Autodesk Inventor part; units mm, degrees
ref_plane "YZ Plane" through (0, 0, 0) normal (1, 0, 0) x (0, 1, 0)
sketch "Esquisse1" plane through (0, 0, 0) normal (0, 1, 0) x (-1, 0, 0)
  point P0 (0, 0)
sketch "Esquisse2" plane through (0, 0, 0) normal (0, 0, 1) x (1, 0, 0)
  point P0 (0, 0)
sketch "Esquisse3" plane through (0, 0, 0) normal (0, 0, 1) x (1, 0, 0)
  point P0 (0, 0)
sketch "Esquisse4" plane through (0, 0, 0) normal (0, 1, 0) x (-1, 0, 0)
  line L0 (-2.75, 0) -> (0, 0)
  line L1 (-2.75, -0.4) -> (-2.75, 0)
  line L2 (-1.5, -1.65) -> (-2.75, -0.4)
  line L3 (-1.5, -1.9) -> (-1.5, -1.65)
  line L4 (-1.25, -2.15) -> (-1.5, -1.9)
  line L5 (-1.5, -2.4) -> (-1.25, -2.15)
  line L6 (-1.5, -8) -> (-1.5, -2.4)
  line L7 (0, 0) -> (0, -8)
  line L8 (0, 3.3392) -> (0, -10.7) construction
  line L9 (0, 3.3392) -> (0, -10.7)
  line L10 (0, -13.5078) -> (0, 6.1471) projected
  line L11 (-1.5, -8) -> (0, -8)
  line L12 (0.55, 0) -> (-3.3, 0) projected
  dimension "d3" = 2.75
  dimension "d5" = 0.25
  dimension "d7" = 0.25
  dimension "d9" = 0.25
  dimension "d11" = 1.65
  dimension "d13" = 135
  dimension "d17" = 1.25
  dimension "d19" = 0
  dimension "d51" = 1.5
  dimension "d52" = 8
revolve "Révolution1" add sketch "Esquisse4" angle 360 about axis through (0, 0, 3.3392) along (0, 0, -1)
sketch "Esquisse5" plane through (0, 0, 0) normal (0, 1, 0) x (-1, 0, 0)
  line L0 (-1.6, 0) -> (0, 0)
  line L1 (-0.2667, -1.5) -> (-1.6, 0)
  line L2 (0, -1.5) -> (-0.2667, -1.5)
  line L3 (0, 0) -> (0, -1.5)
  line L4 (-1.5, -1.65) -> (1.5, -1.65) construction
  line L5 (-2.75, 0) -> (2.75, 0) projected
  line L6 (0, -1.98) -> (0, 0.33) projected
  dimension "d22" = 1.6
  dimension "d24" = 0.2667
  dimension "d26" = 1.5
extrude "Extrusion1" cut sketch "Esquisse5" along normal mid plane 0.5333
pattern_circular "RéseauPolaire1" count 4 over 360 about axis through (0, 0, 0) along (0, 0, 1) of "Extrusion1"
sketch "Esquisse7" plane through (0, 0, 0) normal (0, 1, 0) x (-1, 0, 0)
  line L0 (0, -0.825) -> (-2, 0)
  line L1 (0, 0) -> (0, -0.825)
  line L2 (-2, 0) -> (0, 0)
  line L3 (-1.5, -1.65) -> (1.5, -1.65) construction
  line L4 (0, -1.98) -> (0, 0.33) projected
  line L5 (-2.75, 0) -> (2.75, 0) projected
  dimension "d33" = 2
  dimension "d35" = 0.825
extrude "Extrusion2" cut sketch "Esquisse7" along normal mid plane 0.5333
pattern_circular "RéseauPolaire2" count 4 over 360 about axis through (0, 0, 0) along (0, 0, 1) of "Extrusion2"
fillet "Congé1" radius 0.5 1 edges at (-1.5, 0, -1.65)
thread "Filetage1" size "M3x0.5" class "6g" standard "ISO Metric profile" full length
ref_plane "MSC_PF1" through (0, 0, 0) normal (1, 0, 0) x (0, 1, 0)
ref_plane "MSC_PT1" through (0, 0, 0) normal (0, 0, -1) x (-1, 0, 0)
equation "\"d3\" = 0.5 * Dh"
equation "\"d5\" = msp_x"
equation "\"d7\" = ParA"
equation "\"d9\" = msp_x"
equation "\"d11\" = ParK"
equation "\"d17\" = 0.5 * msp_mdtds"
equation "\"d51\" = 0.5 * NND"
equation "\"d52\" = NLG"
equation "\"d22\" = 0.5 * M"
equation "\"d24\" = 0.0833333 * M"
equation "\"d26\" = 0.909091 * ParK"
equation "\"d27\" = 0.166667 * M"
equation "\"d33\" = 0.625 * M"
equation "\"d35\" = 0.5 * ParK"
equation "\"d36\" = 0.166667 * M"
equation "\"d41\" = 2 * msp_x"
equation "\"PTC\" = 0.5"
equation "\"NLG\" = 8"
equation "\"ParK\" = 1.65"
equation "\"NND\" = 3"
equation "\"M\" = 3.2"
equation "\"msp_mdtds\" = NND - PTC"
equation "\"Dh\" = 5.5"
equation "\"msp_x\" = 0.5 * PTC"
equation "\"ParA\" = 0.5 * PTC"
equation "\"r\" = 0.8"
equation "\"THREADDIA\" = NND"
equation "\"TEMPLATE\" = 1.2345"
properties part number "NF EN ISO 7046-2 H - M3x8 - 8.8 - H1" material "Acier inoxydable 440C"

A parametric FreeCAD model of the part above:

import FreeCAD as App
import Part
import Sketcher
Q = App.Units.Quantity


def edges_at(feature, points):
    """Names of the edges that pass closest to the given points."""
    edges = feature.Shape.Edges
    near = lambda p: min(range(len(edges)), key=lambda i: edges[i].distToShape(Part.Vertex(*p))[0])
    return sorted({f"Edge{near(p) + 1}" for p in points})

doc = App.newDocument("Part")
params = doc.addObject("Spreadsheet::Sheet", "Params")
for row, (alias, value) in enumerate([
    ("sketch1_height", "8 mm"),
    ("sketch1_width", "1.5 mm"),
    ("sketch1_width2", "2.75 mm"),
    ("sketch1_height2", "0.25 mm"),
    ("revolution_angle", "360 deg"),
    ("sketch2_width", "1.6 mm"),
    ("sketch2_height", "1.5 mm"),
    ("pocket1_length", "0.5333 mm"),
    ("sketch3_width", "2 mm"),
    ("pocket2_length", "0.5333 mm"),
    ("fillet_radius", "0.5 mm"),
], start=1):
    params.set(f"A{row}", alias)
    params.set(f"B{row}", "=" + value)
    params.setAlias(f"B{row}", alias)

body = doc.addObject("PartDesign::Body", "Body")

# Sketch on XZ plane
sketch1 = doc.addObject("Sketcher::SketchObject", "Sketch")
body.addObject(sketch1)
sketch1.AttachmentSupport = (doc.XZ_Plane, [""])
sketch1.MapMode = "FlatFace"
sketch1.addGeometry([
    Part.LineSegment(App.Vector(0, 0, 0), App.Vector(2.75, 0, 0)),  # 0
    Part.LineSegment(App.Vector(2.75, 0, 0), App.Vector(2.75, -0.4, 0)),  # 1
    Part.LineSegment(App.Vector(2.75, -0.4, 0), App.Vector(1.5, -1.65, 0)),  # 2
    Part.LineSegment(App.Vector(1.5, -1.65, 0), App.Vector(1.5, -1.9, 0)),  # 3
    Part.LineSegment(App.Vector(1.5, -1.9, 0), App.Vector(1.25, -2.15, 0)),  # 4
    Part.LineSegment(App.Vector(1.25, -2.15, 0), App.Vector(1.5, -2.4, 0)),  # 5
    Part.LineSegment(App.Vector(1.5, -2.4, 0), App.Vector(1.5, -8, 0)),  # 6
    Part.LineSegment(App.Vector(1.5, -8, 0), App.Vector(0, -8, 0)),  # 7
    Part.LineSegment(App.Vector(0, -8, 0), App.Vector(0, 0, 0)),  # 8
], False)
sketch1.addConstraint([
    Sketcher.Constraint("Coincident", 0, 2, 1, 1),
    Sketcher.Constraint("Coincident", 1, 2, 2, 1),
    Sketcher.Constraint("Coincident", 2, 2, 3, 1),
    Sketcher.Constraint("Coincident", 3, 2, 4, 1),
    Sketcher.Constraint("Coincident", 4, 2, 5, 1),
    Sketcher.Constraint("Coincident", 5, 2, 6, 1),
    Sketcher.Constraint("Coincident", 6, 2, 7, 1),
    Sketcher.Constraint("Coincident", 7, 2, 8, 1),
    Sketcher.Constraint("Coincident", 8, 2, 0, 1),
    Sketcher.Constraint("Horizontal", 0),
    Sketcher.Constraint("Vertical", 1),
    Sketcher.Constraint("Vertical", 3),
    Sketcher.Constraint("Vertical", 6),
    Sketcher.Constraint("Horizontal", 7),
    Sketcher.Constraint("Vertical", 8),
    Sketcher.Constraint("Coincident", 8, 2, -1, 1),
    Sketcher.Constraint("Parallel", 2, 4),
    Sketcher.Constraint("Perpendicular", 4, 5),
    Sketcher.Constraint("Vertical", 3, 2, 5, 2),
    Sketcher.Constraint("Equal", 4, 5),
    Sketcher.Constraint("DistanceY", 8, 1, 8, 2, Q("8 mm")),
    Sketcher.Constraint("DistanceX", 7, 2, 7, 1, Q("1.5 mm")),
    Sketcher.Constraint("DistanceX", 0, 1, 0, 2, Q("2.75 mm")),
    Sketcher.Constraint("DistanceY", 3, 2, 3, 1, Q("0.25 mm")),
    Sketcher.Constraint("DistanceX", 4, 2, 1, 2, Q("1.5 mm")),
    Sketcher.Constraint("DistanceY", 2, 2, -1, 1, Q("1.65 mm")),
])
sketch1.setExpression("Constraints[20]", "Params.sketch1_height")
sketch1.setExpression("Constraints[21]", "Params.sketch1_width")
sketch1.setExpression("Constraints[22]", "Params.sketch1_width2")
sketch1.setExpression("Constraints[23]", "Params.sketch1_height2")
revolution = doc.addObject("PartDesign::Revolution", "Revolution")
body.addObject(revolution)
revolution.Profile = sketch1
revolution.ReferenceAxis = (sketch1, ["V_Axis"])
revolution.setExpression("Angle", "Params.revolution_angle")

# Sketch on XZ plane
sketch2 = doc.addObject("Sketcher::SketchObject", "Sketch001")
body.addObject(sketch2)
sketch2.AttachmentSupport = (doc.XZ_Plane, [""])
sketch2.MapMode = "FlatFace"
sketch2.addGeometry([
    Part.LineSegment(App.Vector(0, 0, 0), App.Vector(1.6, 0, 0)),
    Part.LineSegment(App.Vector(1.6, 0, 0), App.Vector(0.27, -1.5, 0)),
    Part.LineSegment(App.Vector(0.27, -1.5, 0), App.Vector(0, -1.5, 0)),
    Part.LineSegment(App.Vector(0, -1.5, 0), App.Vector(0, 0, 0)),
], False)
sketch2.addConstraint([
    Sketcher.Constraint("Coincident", 0, 2, 1, 1),
    Sketcher.Constraint("Coincident", 1, 2, 2, 1),
    Sketcher.Constraint("Coincident", 2, 2, 3, 1),
    Sketcher.Constraint("Coincident", 3, 2, 0, 1),
    Sketcher.Constraint("Horizontal", 0),
    Sketcher.Constraint("Horizontal", 2),
    Sketcher.Constraint("Vertical", 3),
    Sketcher.Constraint("Coincident", 3, 2, -1, 1),
    Sketcher.Constraint("DistanceX", 0, 1, 0, 2, Q("1.6 mm")),
    Sketcher.Constraint("DistanceY", 3, 1, 3, 2, Q("1.5 mm")),
    Sketcher.Constraint("DistanceX", 2, 2, 2, 1, Q("0.2667 mm")),
])
sketch2.setExpression("Constraints[8]", "Params.sketch2_width")
sketch2.setExpression("Constraints[9]", "Params.sketch2_height")
pocket1 = doc.addObject("PartDesign::Pocket", "Pocket")
body.addObject(pocket1)
pocket1.Profile = sketch2
pocket1.setExpression("Length", "Params.pocket1_length")
pocket1.Midplane = True
doc.recompute()

polarpattern = doc.addObject("PartDesign::PolarPattern", "PolarPattern")
body.addObject(polarpattern)
polarpattern.Originals = [pocket1]
polarpattern.Axis = (doc.Z_Axis, [""])
polarpattern.Angle = 360
polarpattern.Occurrences = 4
body.Tip = polarpattern

# Sketch on XZ plane
sketch3 = doc.addObject("Sketcher::SketchObject", "Sketch002")
body.addObject(sketch3)
sketch3.AttachmentSupport = (doc.XZ_Plane, [""])
sketch3.MapMode = "FlatFace"
sketch3.addGeometry([
    Part.LineSegment(App.Vector(2, 0, 0), App.Vector(0, -0.8, 0)),
    Part.LineSegment(App.Vector(0, -0.8, 0), App.Vector(0, 0, 0)),
    Part.LineSegment(App.Vector(0, 0, 0), App.Vector(2, 0, 0)),
], False)
sketch3.addConstraint([
    Sketcher.Constraint("Coincident", 0, 2, 1, 1),
    Sketcher.Constraint("Coincident", 1, 2, 2, 1),
    Sketcher.Constraint("Coincident", 2, 2, 0, 1),
    Sketcher.Constraint("Vertical", 1),
    Sketcher.Constraint("Horizontal", 2),
    Sketcher.Constraint("Coincident", 1, 2, -1, 1),
    Sketcher.Constraint("DistanceX", 2, 1, 2, 2, Q("2 mm")),
    Sketcher.Constraint("DistanceY", 1, 1, 1, 2, Q("0.825 mm")),
])
sketch3.setExpression("Constraints[6]", "Params.sketch3_width")
pocket2 = doc.addObject("PartDesign::Pocket", "Pocket001")
body.addObject(pocket2)
pocket2.Profile = sketch3
pocket2.setExpression("Length", "Params.pocket2_length")
pocket2.Midplane = True
doc.recompute()

polarpattern2 = doc.addObject("PartDesign::PolarPattern", "PolarPattern001")
body.addObject(polarpattern2)
polarpattern2.Originals = [pocket2]
polarpattern2.Axis = (doc.Z_Axis, [""])
polarpattern2.Angle = 360
polarpattern2.Occurrences = 4
body.Tip = polarpattern2
doc.recompute()

fillet = doc.addObject("PartDesign::Fillet", "Fillet")
body.addObject(fillet)
fillet.Base = (polarpattern2, edges_at(polarpattern2, [(-1.5, 0, -1.65)]))
fillet.setExpression("Radius", "Params.fillet_radius")

doc.recompute()
